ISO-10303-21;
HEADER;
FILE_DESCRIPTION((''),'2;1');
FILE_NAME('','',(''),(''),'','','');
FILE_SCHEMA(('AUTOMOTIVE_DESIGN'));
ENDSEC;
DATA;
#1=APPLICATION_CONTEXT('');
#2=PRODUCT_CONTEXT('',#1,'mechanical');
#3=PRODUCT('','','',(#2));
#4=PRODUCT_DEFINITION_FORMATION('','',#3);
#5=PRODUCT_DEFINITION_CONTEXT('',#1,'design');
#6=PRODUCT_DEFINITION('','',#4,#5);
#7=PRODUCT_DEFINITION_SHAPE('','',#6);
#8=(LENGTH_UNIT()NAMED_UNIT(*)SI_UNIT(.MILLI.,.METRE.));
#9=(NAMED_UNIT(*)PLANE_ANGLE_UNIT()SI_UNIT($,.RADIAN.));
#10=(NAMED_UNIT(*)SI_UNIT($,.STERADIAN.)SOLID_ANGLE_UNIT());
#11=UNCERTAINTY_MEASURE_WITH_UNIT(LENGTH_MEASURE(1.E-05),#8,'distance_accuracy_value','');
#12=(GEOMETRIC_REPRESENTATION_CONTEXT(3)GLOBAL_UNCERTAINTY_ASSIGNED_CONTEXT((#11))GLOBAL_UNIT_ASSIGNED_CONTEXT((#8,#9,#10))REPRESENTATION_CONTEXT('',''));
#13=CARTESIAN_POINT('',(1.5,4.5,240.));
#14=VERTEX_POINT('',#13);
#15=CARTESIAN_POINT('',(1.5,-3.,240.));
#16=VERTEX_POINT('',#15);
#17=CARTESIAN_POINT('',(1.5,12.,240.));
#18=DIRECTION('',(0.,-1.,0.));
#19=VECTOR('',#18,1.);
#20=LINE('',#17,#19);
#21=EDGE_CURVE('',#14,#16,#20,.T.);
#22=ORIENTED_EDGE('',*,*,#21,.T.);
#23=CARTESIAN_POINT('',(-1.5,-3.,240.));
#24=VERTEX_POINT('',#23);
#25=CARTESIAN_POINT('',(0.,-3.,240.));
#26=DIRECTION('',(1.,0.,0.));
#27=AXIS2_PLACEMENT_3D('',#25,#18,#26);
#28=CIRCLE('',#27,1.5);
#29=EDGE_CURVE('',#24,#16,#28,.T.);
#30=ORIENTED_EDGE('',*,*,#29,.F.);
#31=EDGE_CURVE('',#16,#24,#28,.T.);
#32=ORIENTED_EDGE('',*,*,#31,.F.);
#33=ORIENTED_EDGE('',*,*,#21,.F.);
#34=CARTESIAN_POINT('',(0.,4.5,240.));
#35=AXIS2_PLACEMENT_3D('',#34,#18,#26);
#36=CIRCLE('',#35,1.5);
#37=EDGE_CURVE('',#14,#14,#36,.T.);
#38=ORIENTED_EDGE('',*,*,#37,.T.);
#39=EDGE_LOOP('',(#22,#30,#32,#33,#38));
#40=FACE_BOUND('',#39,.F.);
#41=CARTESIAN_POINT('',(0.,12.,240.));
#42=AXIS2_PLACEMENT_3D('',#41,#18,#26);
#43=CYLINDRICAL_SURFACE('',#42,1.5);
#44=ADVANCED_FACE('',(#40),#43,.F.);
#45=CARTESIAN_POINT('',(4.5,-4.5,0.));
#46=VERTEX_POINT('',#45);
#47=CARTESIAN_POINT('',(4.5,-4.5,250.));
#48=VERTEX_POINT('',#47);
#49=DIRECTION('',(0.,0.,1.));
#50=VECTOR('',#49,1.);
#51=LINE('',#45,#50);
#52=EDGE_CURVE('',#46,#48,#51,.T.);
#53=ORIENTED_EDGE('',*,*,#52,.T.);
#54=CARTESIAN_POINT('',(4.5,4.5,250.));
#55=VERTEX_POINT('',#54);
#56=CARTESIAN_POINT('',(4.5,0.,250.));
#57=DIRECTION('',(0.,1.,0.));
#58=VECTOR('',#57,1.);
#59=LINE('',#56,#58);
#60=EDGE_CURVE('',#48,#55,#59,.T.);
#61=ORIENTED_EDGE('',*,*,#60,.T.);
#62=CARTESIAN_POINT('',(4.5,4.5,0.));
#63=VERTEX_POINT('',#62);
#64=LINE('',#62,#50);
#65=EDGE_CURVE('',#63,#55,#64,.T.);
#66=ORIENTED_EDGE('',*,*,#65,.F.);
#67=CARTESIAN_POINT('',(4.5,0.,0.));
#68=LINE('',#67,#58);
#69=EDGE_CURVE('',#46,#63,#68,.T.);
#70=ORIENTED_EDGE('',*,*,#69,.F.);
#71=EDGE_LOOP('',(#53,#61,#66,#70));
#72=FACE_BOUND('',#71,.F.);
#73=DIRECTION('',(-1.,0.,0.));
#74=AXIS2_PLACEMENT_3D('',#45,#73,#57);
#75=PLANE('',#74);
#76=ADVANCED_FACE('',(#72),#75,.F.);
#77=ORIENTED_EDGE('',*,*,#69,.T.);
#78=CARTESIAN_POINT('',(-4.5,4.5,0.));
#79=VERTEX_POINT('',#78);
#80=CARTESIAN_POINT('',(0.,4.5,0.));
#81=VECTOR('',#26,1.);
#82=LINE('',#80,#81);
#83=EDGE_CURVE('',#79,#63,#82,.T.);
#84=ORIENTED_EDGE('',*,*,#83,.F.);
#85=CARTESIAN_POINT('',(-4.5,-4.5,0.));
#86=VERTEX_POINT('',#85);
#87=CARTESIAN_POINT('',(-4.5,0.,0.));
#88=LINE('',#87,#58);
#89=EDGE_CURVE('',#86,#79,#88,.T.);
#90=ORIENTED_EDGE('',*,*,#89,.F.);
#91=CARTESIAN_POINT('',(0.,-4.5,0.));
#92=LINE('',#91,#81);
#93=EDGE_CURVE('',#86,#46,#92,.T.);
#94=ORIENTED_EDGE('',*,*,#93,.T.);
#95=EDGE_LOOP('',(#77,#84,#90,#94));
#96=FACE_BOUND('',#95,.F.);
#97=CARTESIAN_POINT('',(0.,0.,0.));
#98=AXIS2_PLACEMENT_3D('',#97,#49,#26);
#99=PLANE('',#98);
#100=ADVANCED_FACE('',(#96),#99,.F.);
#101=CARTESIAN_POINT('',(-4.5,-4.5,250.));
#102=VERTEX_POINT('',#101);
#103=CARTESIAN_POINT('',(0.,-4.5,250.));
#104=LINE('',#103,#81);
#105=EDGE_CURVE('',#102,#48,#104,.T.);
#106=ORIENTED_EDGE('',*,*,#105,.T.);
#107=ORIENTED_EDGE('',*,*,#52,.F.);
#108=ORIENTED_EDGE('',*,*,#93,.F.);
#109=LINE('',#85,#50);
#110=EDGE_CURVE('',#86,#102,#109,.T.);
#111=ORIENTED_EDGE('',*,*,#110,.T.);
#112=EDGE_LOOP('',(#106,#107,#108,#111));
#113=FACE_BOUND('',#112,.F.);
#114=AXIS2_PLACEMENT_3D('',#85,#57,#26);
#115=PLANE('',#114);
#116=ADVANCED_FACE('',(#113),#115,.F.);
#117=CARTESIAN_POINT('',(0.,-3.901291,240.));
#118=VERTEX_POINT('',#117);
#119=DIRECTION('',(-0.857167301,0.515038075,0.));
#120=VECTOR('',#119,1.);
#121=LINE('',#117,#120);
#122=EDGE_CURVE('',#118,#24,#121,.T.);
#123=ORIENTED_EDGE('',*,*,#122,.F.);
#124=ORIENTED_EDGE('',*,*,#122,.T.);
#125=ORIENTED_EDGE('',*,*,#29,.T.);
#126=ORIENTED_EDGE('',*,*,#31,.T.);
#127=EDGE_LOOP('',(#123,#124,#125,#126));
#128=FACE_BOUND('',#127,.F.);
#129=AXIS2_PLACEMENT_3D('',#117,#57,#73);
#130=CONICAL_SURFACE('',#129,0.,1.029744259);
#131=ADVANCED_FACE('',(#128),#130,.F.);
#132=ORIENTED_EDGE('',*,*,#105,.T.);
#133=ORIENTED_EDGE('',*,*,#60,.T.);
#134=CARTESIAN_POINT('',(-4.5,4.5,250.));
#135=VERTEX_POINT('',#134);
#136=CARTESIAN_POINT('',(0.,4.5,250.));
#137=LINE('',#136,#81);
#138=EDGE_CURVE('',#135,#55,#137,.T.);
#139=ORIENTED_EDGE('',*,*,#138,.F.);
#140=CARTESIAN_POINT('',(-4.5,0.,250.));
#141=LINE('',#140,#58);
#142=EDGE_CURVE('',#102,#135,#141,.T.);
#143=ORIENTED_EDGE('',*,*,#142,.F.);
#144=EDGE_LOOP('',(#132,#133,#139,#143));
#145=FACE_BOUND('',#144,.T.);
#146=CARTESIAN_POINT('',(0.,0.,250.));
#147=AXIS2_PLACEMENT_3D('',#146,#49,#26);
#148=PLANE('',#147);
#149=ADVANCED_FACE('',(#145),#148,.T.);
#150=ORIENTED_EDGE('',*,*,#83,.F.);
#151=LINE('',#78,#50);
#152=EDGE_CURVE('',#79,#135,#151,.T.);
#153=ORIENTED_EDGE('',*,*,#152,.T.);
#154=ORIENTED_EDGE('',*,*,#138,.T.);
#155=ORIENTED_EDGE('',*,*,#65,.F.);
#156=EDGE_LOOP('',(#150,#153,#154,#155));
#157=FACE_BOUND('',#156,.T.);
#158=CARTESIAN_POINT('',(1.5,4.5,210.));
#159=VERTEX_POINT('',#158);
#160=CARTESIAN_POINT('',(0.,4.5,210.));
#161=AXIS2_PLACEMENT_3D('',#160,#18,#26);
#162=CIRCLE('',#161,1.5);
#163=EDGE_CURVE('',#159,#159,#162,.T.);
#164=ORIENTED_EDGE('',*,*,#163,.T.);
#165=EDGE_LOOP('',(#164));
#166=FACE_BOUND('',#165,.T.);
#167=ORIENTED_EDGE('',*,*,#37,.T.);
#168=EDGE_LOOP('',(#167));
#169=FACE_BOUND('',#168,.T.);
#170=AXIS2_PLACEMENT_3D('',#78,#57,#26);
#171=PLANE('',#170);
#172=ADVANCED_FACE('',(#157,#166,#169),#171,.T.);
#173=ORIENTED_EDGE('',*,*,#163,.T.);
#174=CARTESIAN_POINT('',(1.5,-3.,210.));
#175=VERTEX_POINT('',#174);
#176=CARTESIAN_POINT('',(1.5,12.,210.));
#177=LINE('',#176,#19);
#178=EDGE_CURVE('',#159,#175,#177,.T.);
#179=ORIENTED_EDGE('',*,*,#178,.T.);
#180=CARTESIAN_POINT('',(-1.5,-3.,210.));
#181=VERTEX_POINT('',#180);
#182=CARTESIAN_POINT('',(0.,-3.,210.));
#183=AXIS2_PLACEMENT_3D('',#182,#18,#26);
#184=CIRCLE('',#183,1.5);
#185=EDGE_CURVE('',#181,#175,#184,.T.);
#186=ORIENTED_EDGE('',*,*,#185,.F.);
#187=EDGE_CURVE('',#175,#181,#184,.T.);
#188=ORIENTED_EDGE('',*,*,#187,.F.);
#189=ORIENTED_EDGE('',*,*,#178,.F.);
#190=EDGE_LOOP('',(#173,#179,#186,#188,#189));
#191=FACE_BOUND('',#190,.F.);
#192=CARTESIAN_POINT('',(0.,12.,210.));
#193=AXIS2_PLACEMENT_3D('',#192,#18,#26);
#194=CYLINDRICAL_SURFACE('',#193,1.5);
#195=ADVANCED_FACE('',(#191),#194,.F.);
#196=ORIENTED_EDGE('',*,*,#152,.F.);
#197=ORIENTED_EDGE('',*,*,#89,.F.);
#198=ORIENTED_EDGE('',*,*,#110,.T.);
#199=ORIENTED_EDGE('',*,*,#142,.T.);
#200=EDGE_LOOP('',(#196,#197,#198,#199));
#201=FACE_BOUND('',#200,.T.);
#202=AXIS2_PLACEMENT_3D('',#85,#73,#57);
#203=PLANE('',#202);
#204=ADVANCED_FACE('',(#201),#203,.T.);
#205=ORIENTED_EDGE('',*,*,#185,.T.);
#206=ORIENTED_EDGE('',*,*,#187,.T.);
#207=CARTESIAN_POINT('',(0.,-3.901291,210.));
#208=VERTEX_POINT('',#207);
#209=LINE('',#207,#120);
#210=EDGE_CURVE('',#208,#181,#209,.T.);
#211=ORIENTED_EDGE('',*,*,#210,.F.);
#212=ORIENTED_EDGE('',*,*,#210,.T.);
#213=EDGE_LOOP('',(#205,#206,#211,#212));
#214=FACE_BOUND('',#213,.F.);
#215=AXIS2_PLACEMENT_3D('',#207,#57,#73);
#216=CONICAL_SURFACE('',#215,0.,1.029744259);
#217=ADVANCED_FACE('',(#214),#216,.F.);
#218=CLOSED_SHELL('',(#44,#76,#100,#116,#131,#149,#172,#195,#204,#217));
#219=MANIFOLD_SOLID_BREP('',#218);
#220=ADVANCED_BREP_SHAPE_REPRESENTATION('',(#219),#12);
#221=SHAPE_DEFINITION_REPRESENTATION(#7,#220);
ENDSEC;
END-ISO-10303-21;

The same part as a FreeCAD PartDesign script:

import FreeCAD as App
import Part
import Sketcher

doc = App.newDocument("Part")
body = doc.addObject("PartDesign::Body", "Body")

# Sketch on XY plane
sketch1 = body.newObject("Sketcher::SketchObject", "Sketch")
sketch1.AttachmentSupport = (doc.getObject("XY_Plane"), [""])
sketch1.MapMode = "FlatFace"
sketch1.addGeometry([
    Part.LineSegment(App.Vector(-4, 4, 0), App.Vector(-4, -4, 0)),
    Part.LineSegment(App.Vector(-4, -4, 0), App.Vector(4, -4, 0)),
    Part.LineSegment(App.Vector(4, -4, 0), App.Vector(4, 4, 0)),
    Part.LineSegment(App.Vector(4, 4, 0), App.Vector(-4, 4, 0)),
], False)
sketch1.addConstraint([
    Sketcher.Constraint("Coincident", 0, 2, 1, 1),
    Sketcher.Constraint("Coincident", 1, 2, 2, 1),
    Sketcher.Constraint("Coincident", 2, 2, 3, 1),
    Sketcher.Constraint("Coincident", 3, 2, 0, 1),
    Sketcher.Constraint("Vertical", 0),
    Sketcher.Constraint("Horizontal", 1),
    Sketcher.Constraint("Vertical", 2),
    Sketcher.Constraint("Horizontal", 3),
    Sketcher.Constraint("Symmetric", 0, 2, 2, 2, -1, 1),
    Sketcher.Constraint("Equal", 3, 0),
    Sketcher.Constraint("DistanceX", 1, 1, 1, 2, 9.0),
])
pad1 = body.newObject("PartDesign::Pad", "Pad")
pad1.Profile = sketch1
pad1.Length = 250

# Sketch on XZ plane
sketch2 = body.newObject("Sketcher::SketchObject", "Sketch001")
sketch2.AttachmentSupport = (doc.getObject("XZ_Plane"), [""])
sketch2.MapMode = "FlatFace"
sketch2.AttachmentOffset = App.Placement(App.Vector(0, 0, -4.5), App.Rotation())
sketch2.addGeometry([
    Part.Circle(App.Vector(0, 240, 0), App.Vector(0, 0, 1), 1.5),
    Part.Circle(App.Vector(0, 210, 0), App.Vector(0, 0, 1), 1.5),
], False)
sketch2.addConstraint([
    Sketcher.Constraint("Equal", 0, 1),
    Sketcher.Constraint("PointOnObject", 0, 3, -2),
    Sketcher.Constraint("PointOnObject", 1, 3, -2),
    Sketcher.Constraint("Diameter", 0, 3.0),
    Sketcher.Constraint("DistanceY", -1, 1, 0, 3, 240.0),
    Sketcher.Constraint("DistanceY", -1, 1, 1, 3, 210.0),
])
doc.recompute()
hole = body.newObject("PartDesign::Hole", "Hole")
hole.Profile = sketch2
hole.ThreadType = "None"
hole.Diameter = 3
hole.DepthType = "Dimension"
hole.Depth = 7.5
hole.DrillPoint = "Angled"
hole.DrillPointAngle = 118
hole.Reversed = True

doc.recompute()
